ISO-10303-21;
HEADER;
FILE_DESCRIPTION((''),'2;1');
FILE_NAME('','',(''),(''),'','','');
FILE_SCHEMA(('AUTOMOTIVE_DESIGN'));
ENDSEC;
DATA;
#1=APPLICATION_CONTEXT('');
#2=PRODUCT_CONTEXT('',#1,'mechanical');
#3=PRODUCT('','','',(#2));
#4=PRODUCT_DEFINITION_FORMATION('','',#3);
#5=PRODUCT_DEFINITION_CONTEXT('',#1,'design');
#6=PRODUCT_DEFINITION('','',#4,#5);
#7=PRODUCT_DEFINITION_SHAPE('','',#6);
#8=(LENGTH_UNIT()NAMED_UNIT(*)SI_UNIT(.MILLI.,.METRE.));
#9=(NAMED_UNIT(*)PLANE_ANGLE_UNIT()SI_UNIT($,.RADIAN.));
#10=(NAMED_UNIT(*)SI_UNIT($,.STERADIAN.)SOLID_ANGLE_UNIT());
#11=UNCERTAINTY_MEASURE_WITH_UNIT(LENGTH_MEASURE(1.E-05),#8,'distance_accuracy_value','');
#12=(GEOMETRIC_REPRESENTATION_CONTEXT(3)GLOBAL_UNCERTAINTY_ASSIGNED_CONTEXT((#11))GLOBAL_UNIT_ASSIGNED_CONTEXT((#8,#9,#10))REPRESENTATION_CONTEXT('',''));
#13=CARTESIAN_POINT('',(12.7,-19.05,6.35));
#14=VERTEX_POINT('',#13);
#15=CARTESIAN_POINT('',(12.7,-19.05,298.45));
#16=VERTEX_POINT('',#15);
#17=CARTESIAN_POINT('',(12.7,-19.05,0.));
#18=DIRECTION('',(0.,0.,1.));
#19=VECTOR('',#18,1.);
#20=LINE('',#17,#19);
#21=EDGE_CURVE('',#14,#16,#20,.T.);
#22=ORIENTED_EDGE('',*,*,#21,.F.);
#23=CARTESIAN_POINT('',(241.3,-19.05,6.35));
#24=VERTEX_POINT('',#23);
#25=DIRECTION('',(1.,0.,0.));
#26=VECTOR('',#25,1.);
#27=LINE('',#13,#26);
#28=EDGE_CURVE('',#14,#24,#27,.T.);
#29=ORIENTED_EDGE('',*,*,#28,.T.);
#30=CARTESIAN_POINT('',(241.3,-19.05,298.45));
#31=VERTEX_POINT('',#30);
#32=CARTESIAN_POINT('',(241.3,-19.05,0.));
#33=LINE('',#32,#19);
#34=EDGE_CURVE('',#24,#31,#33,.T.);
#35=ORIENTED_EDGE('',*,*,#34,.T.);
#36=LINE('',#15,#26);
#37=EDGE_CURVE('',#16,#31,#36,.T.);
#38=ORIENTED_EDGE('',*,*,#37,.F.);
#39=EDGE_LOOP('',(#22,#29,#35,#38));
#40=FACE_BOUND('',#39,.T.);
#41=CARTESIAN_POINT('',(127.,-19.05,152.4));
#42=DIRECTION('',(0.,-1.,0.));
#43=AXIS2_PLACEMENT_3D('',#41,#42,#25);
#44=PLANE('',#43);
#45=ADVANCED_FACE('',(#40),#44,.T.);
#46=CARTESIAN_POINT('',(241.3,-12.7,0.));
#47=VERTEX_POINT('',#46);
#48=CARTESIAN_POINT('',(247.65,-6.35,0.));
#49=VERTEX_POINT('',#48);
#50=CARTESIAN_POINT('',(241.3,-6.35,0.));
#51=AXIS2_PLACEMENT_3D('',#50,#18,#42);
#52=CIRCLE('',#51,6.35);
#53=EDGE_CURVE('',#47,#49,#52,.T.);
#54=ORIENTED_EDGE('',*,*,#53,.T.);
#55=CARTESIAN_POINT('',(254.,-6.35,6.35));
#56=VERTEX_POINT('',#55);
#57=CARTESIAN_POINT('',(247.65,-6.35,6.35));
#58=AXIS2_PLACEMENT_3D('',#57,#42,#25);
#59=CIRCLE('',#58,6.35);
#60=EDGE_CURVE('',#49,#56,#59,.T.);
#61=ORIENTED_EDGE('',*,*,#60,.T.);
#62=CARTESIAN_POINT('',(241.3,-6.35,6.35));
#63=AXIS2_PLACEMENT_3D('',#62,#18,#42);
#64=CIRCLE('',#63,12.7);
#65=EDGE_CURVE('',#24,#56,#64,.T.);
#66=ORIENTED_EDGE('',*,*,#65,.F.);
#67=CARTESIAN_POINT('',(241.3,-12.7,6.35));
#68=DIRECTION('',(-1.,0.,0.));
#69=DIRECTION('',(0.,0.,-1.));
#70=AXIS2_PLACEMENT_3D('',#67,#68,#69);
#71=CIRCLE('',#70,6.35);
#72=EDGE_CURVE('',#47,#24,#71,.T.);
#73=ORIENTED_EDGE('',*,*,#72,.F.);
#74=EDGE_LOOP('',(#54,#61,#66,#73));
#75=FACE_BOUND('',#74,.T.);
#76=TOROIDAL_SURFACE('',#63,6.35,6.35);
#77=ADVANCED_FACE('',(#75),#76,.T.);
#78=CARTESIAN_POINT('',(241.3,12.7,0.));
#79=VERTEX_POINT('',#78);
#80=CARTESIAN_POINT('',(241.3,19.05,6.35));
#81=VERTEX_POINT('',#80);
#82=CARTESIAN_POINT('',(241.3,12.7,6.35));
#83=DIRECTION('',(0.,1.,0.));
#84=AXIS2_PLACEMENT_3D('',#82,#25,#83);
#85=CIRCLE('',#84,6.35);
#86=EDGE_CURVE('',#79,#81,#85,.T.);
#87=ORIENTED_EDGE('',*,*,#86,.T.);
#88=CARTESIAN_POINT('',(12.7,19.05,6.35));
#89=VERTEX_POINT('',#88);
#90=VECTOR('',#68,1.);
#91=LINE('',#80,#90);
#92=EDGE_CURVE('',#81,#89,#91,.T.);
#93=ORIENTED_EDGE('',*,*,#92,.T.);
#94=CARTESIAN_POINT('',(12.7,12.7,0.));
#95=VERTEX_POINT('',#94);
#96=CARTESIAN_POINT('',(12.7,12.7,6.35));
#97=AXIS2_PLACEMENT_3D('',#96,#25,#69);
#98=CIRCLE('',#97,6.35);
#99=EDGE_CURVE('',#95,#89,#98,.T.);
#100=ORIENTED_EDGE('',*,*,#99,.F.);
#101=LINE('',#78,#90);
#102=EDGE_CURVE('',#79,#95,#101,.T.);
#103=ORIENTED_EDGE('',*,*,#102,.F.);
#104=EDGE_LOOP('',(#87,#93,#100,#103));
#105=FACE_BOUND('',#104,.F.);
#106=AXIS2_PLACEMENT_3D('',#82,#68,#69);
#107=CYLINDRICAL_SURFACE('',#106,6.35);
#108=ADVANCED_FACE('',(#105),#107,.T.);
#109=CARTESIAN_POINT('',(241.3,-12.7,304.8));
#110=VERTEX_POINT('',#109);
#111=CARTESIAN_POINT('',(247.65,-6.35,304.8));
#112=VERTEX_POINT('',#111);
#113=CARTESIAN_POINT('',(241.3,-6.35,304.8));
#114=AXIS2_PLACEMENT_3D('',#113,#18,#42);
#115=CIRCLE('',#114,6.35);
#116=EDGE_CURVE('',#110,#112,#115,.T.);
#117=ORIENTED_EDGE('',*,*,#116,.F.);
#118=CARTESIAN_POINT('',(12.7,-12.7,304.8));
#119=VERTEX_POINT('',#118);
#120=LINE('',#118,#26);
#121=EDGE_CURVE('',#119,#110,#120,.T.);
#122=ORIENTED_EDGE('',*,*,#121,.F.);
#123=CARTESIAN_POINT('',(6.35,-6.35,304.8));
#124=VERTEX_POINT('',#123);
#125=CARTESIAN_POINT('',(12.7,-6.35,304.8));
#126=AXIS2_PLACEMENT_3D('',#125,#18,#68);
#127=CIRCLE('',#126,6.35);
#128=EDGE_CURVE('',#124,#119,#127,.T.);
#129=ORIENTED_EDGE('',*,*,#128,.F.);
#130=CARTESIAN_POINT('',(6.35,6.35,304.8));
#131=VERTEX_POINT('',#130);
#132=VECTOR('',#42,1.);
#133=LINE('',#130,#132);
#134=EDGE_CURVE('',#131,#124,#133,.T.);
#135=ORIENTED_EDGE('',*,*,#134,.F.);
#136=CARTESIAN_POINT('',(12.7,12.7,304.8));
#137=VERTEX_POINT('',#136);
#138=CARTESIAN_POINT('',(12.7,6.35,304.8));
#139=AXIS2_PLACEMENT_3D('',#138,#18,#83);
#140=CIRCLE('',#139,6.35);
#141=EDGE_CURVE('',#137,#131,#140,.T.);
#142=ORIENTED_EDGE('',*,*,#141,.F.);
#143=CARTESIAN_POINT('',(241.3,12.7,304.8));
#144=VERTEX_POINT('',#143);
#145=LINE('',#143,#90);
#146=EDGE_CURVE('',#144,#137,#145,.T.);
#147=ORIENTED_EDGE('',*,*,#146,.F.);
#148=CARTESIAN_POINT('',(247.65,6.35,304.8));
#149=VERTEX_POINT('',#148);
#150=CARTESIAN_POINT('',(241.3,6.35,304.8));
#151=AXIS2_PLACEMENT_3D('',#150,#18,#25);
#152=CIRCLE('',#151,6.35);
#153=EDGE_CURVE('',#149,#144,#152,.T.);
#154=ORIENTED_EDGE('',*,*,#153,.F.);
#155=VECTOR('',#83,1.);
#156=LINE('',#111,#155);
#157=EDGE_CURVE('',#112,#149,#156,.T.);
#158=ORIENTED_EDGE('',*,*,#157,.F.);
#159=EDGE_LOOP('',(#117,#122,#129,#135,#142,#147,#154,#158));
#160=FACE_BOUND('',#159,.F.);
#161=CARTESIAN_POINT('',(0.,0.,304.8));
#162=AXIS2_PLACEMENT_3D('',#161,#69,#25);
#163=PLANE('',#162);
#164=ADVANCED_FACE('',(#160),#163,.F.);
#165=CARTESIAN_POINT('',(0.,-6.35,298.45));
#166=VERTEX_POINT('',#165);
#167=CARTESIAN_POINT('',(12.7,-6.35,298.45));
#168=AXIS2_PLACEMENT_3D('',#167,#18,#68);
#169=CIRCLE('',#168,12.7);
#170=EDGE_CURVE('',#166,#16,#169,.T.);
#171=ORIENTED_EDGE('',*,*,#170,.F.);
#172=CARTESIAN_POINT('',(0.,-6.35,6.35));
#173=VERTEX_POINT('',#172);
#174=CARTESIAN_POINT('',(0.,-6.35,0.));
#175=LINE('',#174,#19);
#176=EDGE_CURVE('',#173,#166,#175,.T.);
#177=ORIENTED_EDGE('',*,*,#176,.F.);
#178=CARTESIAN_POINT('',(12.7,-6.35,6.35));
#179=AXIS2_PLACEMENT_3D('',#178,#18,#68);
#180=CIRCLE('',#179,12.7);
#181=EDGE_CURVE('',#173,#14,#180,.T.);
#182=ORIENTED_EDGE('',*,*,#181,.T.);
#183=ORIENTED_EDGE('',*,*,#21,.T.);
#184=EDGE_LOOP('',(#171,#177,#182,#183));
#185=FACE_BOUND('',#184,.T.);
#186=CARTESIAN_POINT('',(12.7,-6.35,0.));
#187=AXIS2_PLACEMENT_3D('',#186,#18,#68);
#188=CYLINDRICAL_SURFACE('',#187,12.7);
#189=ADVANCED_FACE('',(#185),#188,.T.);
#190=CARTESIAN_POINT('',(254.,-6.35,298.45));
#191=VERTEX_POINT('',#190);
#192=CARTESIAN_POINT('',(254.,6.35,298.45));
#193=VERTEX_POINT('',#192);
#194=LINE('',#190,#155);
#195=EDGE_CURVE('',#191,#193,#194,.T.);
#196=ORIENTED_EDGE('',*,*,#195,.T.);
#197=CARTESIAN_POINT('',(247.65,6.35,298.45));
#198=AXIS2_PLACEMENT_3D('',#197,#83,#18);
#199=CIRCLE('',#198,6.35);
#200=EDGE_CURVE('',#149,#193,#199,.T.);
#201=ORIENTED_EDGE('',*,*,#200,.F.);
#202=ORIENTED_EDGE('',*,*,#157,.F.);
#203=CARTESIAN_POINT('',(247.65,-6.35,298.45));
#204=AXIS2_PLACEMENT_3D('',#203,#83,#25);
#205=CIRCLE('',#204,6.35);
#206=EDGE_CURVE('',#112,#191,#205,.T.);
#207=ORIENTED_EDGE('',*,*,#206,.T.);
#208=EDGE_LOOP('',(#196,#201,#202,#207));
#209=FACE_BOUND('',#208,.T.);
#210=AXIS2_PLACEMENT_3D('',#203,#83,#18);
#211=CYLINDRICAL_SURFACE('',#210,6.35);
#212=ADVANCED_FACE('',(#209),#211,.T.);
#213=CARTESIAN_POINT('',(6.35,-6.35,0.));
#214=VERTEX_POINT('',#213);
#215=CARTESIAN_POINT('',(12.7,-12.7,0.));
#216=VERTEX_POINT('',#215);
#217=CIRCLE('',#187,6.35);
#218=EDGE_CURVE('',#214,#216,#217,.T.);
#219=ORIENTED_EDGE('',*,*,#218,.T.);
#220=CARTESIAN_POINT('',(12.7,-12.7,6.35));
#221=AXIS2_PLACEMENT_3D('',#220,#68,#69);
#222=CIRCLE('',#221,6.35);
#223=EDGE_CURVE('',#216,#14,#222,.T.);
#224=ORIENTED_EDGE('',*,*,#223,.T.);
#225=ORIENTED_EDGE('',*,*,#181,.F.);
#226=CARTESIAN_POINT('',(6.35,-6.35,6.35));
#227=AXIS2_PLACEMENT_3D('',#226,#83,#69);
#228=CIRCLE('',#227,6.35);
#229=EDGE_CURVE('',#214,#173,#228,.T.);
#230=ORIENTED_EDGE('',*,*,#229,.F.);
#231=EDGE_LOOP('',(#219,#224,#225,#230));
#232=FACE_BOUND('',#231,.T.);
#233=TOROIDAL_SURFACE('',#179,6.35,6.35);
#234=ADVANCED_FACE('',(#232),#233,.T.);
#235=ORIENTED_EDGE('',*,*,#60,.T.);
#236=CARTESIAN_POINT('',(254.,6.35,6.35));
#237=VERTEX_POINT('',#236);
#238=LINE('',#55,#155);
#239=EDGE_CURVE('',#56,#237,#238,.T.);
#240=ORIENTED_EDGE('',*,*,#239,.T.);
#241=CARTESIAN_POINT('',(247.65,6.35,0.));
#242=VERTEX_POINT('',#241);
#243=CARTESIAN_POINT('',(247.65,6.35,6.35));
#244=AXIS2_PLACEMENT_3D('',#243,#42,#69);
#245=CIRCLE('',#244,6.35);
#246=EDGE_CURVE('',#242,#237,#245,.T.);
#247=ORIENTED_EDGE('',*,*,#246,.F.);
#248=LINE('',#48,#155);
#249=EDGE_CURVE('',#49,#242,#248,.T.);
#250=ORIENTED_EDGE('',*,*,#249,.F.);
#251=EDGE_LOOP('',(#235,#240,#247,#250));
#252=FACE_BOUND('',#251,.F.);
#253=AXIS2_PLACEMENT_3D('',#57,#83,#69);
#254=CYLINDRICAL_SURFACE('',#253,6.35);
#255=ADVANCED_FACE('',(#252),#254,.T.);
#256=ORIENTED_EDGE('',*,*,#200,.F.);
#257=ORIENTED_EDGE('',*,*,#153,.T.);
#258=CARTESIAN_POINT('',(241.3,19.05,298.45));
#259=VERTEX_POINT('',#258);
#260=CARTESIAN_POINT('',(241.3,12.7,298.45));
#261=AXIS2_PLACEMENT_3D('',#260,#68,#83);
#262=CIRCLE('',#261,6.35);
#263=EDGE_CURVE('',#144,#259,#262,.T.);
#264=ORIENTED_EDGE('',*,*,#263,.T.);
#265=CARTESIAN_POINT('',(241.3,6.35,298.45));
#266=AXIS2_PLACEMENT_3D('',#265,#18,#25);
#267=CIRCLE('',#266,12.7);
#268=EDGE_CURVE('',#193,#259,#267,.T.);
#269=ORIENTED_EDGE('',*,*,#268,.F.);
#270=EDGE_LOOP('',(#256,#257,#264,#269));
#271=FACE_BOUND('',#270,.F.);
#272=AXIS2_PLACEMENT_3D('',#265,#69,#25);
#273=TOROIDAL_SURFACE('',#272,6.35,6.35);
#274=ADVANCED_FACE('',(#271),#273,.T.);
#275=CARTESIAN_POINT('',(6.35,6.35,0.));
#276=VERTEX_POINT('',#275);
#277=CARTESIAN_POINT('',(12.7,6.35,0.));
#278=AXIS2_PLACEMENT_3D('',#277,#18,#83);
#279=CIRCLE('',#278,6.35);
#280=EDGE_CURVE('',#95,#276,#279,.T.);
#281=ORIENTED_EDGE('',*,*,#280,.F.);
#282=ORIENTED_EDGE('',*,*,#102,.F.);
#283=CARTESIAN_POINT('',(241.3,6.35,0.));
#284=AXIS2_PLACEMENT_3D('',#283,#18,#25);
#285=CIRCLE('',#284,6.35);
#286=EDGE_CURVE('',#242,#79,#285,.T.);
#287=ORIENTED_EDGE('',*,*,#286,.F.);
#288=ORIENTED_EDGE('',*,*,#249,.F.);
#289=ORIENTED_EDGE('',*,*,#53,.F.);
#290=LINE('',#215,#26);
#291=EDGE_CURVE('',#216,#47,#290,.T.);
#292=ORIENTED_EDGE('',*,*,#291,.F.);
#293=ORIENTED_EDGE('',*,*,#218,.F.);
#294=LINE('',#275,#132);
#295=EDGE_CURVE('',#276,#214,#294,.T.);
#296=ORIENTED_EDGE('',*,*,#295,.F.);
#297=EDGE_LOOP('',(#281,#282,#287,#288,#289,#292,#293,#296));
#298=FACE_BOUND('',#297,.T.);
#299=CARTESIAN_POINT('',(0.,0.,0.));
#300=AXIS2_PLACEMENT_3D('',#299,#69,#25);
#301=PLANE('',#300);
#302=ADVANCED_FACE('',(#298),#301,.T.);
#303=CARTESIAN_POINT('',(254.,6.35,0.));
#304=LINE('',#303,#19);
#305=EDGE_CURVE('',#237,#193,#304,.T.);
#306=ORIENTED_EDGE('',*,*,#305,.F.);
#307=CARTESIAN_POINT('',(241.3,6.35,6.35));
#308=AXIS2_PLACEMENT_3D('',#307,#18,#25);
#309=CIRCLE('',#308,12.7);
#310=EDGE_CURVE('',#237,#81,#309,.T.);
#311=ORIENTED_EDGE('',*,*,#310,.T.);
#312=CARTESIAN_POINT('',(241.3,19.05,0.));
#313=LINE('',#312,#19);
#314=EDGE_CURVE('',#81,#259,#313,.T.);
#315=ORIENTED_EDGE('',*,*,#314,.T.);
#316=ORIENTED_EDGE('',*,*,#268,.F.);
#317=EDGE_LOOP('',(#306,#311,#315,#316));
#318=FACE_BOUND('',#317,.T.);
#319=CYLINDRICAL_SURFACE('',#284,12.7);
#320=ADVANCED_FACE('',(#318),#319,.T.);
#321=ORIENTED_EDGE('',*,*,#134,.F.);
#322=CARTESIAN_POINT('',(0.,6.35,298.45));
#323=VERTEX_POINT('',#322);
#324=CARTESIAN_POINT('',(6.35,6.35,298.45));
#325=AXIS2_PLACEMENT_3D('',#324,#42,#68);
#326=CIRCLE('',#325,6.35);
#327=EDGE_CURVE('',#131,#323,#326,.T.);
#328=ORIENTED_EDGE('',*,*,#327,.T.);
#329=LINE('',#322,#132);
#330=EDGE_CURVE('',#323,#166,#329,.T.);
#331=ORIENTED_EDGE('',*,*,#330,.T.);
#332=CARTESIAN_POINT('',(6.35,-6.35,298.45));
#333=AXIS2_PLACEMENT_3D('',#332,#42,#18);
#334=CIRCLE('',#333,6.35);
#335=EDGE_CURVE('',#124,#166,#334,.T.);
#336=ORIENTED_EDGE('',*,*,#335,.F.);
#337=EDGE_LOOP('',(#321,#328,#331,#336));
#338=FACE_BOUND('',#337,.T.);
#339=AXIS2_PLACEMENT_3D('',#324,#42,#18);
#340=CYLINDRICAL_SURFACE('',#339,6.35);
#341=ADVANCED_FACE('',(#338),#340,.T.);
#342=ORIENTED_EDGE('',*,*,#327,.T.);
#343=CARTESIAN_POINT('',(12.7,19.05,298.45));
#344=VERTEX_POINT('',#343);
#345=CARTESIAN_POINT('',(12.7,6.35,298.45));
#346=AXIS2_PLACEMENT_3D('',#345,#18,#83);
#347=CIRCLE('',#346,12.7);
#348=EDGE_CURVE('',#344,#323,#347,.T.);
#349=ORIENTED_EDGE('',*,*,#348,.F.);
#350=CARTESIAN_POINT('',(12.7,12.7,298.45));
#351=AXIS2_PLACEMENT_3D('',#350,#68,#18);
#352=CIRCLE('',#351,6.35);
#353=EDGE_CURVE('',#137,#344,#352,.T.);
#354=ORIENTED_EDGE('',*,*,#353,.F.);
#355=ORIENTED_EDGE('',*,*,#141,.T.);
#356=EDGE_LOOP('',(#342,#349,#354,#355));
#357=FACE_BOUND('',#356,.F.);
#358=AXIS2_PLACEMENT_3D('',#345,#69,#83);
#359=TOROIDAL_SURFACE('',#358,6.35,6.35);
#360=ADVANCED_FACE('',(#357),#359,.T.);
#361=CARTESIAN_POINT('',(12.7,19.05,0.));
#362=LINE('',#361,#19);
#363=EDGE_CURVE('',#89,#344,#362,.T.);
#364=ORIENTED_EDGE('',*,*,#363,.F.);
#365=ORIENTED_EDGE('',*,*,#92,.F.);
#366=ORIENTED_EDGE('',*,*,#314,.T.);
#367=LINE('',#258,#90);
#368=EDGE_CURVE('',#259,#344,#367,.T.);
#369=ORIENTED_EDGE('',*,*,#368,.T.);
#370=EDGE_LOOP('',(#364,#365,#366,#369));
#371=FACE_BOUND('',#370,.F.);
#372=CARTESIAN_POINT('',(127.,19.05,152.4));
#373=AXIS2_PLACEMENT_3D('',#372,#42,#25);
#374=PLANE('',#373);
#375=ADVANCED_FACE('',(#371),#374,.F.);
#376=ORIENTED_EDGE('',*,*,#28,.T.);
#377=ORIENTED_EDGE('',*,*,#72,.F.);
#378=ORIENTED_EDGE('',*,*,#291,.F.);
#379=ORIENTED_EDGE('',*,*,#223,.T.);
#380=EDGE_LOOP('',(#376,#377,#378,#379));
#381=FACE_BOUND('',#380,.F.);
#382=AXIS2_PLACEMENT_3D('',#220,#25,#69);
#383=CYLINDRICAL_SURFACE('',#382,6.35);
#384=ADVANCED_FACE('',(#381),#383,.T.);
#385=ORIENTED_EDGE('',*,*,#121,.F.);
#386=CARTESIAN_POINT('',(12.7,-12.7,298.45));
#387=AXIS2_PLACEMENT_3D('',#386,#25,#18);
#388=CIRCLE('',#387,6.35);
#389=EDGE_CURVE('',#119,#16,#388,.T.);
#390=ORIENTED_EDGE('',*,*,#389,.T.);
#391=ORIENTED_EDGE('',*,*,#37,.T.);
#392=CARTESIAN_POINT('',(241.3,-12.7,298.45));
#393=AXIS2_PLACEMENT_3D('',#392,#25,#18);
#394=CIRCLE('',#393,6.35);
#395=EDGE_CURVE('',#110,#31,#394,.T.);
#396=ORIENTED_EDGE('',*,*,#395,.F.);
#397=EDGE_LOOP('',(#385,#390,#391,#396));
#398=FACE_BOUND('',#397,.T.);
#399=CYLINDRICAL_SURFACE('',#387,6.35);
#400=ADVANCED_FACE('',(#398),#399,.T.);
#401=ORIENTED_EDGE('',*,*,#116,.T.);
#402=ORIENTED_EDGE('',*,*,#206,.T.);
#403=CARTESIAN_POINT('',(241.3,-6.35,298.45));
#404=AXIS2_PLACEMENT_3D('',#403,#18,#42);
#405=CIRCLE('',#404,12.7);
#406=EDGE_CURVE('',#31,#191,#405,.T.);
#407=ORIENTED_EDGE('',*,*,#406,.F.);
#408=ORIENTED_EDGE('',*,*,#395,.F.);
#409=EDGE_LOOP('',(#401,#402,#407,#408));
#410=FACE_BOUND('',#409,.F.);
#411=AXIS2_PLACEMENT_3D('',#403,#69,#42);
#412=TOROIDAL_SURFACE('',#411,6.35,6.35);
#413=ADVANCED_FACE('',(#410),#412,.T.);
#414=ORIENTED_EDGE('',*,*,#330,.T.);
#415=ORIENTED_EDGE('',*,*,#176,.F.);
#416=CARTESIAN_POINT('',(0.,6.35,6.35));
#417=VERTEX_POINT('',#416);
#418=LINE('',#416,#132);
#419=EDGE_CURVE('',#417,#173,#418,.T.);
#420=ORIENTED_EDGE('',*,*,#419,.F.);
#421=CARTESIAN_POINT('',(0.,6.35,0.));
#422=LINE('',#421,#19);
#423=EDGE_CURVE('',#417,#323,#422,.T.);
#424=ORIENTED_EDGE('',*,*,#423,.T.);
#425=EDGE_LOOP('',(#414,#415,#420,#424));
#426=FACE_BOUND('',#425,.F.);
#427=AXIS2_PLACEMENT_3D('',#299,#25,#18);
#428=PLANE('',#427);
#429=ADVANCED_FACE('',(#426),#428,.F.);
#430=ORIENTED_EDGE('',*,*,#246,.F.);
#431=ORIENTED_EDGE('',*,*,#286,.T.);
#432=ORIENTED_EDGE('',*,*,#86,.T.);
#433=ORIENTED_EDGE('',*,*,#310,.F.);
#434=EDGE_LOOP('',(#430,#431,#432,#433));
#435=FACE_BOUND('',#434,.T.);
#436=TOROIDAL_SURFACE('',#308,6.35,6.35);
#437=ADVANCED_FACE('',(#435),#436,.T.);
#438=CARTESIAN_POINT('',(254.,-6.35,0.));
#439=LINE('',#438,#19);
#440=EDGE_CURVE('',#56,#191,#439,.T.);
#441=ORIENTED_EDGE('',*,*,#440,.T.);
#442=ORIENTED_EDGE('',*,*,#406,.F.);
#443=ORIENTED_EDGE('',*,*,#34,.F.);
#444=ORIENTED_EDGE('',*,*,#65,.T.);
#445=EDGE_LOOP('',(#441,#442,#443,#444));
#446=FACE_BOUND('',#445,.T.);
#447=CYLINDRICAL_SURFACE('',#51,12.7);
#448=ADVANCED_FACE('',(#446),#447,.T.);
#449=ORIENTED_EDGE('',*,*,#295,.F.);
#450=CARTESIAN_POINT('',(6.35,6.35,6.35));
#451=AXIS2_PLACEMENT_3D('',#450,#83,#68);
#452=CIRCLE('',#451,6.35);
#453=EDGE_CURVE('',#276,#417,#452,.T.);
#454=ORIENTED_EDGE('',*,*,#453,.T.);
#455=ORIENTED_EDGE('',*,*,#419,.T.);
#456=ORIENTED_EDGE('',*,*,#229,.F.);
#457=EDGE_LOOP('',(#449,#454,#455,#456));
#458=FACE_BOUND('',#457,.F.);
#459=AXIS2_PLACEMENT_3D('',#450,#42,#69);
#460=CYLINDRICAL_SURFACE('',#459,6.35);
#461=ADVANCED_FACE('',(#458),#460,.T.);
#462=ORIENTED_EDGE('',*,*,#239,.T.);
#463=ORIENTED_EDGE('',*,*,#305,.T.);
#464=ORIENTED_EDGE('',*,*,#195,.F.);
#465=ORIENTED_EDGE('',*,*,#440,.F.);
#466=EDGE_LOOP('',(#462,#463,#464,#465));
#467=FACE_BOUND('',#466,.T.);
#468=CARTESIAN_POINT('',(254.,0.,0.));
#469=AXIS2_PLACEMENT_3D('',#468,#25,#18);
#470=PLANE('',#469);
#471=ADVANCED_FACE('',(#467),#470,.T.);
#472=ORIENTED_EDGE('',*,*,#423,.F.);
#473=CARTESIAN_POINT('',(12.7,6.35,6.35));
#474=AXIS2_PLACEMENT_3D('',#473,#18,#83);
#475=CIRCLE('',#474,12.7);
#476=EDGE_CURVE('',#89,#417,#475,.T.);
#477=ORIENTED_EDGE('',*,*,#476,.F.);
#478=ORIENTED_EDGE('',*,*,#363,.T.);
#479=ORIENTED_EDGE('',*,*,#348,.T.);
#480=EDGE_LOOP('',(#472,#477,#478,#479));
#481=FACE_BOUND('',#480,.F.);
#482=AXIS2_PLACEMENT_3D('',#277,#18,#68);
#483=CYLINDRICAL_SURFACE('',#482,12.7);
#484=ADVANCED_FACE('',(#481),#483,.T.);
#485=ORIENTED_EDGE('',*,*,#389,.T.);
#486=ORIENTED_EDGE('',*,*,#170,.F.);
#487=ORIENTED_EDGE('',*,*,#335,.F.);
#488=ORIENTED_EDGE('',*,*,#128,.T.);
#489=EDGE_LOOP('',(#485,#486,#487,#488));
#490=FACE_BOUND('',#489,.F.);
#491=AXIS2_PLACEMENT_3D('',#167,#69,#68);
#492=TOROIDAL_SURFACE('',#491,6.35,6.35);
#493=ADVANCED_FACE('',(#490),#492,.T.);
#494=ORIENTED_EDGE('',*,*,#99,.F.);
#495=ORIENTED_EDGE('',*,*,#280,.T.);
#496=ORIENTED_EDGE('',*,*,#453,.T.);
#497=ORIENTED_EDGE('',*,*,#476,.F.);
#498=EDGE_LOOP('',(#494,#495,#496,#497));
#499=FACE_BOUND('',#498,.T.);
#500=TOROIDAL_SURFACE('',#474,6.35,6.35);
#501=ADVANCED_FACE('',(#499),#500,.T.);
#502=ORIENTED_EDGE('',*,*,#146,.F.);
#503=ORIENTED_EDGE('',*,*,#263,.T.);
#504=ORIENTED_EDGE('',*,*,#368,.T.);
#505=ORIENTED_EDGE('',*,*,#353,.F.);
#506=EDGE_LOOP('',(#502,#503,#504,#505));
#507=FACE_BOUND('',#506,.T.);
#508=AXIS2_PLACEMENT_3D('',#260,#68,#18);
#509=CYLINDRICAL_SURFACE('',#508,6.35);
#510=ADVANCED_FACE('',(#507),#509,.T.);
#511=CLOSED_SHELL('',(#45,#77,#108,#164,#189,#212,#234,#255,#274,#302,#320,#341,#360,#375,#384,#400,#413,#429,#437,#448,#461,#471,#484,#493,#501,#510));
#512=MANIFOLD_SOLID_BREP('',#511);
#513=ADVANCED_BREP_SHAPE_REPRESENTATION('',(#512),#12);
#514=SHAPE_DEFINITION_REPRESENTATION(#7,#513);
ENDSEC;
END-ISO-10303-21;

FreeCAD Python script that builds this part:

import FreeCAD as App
import Part
import Sketcher

V = App.Vector
Q = App.Units.Quantity


def edges_at(feature, points):
    """Names of the edges that pass closest to the given points."""
    edges = feature.Shape.Edges
    near = lambda p: min(range(len(edges)), key=lambda i: edges[i].distToShape(Part.Vertex(*p))[0])
    return sorted({f"Edge{near(p) + 1}" for p in points})

doc = App.newDocument("Part")
body = doc.addObject("PartDesign::Body", "Body")

# Sketch on XZ plane
sketch1 = body.newObject("Sketcher::SketchObject", "Sketch")
sketch1.AttachmentSupport = (doc.getObject("XZ_Plane"), [""])
sketch1.MapMode = "FlatFace"
sketch1.addGeometry([
    Part.LineSegment(V(0, 305, 0), V(0, 0, 0)),
    Part.LineSegment(V(0, 0, 0), V(254, 0, 0)),
    Part.LineSegment(V(254, 0, 0), V(254, 305, 0)),
    Part.LineSegment(V(254, 305, 0), V(0, 305, 0)),
], False)
sketch1.addConstraint([
    Sketcher.Constraint("Coincident", 0, 2, 1, 1),
    Sketcher.Constraint("Coincident", 1, 2, 2, 1),
    Sketcher.Constraint("Coincident", 2, 2, 3, 1),
    Sketcher.Constraint("Coincident", 3, 2, 0, 1),
    Sketcher.Constraint("Vertical", 0),
    Sketcher.Constraint("Horizontal", 1),
    Sketcher.Constraint("Vertical", 2),
    Sketcher.Constraint("Horizontal", 3),
    Sketcher.Constraint("Coincident", 0, 2, -1, 1),
    Sketcher.Constraint("DistanceX", 1, 1, 1, 2, Q("10 in")),
    Sketcher.Constraint("DistanceY", 0, 2, 0, 1, Q("12 in")),
])
pad1 = body.newObject("PartDesign::Pad", "Pad")
pad1.Profile = sketch1
pad1.Length = Q("1.5 in")
pad1.Midplane = True
doc.recompute()

fillet = body.newObject("PartDesign::Fillet", "Fillet")
fillet.Base = (pad1, edges_at(pad1, [
    (0, -19.05, 152.4),
    (254, -19.05, 152.4),
    (254, 19.05, 152.4),
    (0, 19.05, 152.4),
]))
fillet.Radius = Q("0.5 in")
doc.recompute()

fillet2 = body.newObject("PartDesign::Fillet", "Fillet001")
fillet2.Base = (fillet, edges_at(fillet, [(127, -19.05, 304.8), (127, -19.05, 0)]))
fillet2.Radius = Q("0.25 in")

doc.recompute()
